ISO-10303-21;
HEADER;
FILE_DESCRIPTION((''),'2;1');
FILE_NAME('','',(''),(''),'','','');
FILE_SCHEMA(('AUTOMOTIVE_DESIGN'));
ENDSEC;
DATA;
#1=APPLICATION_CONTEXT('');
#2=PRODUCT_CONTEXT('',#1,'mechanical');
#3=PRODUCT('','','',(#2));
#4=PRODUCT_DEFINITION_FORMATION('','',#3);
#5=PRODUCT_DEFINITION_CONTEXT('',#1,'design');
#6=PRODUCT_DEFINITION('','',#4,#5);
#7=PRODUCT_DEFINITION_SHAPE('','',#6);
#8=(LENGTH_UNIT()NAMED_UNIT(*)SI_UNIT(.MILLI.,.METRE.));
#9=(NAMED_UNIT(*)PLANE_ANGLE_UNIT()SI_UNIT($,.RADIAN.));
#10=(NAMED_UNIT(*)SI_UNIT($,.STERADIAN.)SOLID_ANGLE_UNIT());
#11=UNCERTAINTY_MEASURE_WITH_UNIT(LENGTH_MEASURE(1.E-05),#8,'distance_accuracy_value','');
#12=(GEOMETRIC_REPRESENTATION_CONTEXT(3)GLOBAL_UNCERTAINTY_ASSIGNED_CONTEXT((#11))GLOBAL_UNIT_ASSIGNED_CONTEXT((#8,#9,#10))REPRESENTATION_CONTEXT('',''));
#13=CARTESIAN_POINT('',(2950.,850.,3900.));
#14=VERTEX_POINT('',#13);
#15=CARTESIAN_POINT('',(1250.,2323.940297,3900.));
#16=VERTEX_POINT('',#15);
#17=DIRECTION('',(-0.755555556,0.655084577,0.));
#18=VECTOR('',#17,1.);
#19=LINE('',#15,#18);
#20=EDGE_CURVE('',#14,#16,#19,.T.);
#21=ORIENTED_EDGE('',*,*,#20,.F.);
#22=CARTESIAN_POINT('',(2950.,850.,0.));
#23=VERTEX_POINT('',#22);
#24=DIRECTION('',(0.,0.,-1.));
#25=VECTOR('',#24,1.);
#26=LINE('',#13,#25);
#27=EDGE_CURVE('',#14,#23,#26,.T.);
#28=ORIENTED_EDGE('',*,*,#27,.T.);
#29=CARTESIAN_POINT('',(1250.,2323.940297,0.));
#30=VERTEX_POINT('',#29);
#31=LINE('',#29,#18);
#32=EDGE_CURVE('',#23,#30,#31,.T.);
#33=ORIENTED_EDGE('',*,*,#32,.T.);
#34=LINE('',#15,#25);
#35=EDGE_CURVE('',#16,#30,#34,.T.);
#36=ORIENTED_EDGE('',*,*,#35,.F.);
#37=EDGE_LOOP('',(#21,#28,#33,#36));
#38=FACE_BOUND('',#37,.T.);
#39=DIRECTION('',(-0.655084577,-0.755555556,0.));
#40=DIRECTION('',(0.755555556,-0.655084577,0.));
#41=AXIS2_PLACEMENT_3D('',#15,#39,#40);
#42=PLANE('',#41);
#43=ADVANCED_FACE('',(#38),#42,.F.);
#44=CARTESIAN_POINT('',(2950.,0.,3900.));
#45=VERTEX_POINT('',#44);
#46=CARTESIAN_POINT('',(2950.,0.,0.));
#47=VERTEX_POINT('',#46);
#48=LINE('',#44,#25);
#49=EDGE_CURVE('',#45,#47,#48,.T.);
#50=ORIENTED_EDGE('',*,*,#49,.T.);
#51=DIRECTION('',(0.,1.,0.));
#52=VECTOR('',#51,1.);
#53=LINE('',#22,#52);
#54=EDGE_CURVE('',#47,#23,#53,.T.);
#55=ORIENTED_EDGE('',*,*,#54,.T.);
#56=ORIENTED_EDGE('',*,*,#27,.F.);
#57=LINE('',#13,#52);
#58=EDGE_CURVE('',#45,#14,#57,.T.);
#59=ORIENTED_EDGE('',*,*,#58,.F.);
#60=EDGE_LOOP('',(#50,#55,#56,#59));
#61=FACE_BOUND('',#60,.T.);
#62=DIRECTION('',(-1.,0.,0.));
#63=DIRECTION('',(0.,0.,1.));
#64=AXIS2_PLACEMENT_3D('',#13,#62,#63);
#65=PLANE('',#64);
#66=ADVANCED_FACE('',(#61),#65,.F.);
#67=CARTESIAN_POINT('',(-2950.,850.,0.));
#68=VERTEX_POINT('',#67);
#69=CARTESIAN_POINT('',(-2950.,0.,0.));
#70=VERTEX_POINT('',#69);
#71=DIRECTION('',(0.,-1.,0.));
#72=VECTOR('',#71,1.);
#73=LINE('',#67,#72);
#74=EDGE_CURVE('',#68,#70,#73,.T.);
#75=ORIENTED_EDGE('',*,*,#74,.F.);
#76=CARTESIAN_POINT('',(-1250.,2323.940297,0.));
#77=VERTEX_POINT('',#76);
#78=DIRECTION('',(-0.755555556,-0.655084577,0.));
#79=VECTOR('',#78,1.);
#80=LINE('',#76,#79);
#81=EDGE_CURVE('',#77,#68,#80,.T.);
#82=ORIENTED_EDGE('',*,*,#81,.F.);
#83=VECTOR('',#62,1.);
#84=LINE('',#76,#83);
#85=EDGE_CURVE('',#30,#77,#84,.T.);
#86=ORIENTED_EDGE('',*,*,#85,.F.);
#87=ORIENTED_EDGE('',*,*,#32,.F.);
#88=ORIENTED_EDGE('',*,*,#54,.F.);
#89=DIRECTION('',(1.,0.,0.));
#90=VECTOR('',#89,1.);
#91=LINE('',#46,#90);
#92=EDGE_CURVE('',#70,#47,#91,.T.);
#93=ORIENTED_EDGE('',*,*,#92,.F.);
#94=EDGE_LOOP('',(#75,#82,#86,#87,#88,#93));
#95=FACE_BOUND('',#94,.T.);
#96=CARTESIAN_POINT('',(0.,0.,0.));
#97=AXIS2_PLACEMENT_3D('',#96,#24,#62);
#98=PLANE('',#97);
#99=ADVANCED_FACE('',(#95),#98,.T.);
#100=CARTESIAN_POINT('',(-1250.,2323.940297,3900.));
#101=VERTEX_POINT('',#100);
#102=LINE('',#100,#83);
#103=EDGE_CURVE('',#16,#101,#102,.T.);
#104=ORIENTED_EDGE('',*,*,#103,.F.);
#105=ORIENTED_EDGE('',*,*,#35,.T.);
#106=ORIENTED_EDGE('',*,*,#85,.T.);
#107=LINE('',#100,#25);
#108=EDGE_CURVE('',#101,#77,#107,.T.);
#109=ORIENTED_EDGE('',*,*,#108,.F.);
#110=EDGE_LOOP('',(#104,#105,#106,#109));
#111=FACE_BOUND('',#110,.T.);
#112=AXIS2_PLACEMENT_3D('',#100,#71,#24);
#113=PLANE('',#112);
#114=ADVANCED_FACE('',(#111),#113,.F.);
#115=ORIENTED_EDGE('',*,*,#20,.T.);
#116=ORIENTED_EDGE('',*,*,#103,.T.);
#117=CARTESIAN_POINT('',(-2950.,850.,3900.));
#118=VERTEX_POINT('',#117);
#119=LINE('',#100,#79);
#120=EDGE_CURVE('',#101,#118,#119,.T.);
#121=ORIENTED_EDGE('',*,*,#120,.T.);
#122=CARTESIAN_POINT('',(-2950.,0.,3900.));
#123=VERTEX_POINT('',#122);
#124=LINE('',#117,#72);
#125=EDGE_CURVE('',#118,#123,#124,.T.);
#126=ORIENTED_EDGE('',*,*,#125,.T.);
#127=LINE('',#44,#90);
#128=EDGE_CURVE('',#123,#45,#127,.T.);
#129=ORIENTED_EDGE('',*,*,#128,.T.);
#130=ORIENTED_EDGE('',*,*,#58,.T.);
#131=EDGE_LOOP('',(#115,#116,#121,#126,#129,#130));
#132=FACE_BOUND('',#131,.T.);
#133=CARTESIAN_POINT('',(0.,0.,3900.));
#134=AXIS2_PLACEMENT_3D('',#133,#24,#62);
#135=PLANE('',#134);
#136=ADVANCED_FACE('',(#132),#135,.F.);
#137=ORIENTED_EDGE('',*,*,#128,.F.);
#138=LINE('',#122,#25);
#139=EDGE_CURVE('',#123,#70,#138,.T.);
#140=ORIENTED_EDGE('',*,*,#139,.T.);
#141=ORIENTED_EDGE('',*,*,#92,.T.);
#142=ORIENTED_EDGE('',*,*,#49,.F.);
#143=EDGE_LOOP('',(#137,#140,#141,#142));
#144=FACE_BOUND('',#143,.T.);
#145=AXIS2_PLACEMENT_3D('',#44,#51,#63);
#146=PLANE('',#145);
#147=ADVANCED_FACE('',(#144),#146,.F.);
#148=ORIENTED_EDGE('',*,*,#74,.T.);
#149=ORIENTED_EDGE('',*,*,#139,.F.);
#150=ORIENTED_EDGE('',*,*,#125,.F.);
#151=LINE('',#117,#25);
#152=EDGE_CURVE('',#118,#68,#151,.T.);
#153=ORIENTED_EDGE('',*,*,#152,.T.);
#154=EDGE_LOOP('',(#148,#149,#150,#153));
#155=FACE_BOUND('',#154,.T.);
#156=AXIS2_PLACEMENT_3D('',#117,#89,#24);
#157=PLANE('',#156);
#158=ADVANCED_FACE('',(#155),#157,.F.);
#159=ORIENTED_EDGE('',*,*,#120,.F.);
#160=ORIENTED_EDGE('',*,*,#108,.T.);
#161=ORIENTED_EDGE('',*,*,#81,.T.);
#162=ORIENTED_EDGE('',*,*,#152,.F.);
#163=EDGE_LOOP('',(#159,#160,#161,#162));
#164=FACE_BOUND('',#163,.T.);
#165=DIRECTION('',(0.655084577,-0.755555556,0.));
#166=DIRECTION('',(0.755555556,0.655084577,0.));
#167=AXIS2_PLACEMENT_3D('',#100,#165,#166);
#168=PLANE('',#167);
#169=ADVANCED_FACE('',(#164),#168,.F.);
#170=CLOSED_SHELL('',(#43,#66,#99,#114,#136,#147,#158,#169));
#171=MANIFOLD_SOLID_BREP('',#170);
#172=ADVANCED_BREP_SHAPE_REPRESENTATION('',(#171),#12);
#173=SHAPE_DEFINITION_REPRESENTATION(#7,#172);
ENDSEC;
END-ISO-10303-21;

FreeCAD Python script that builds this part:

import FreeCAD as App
import Part
import Sketcher
Q = App.Units.Quantity


def add_polygon(sketch, points):
    """Adds a closed chain of lines whose ends are joined by coincident constraints."""
    first, n = sketch.GeometryCount, len(points)
    for a, b in zip(points, points[1:] + points[:1]):
        sketch.addGeometry(Part.LineSegment(App.Vector(*a, 0), App.Vector(*b, 0)), False)
    for i in range(n):
        sketch.addConstraint(Sketcher.Constraint("Coincident", first + i, 2, first + (i + 1) % n, 1))

doc = App.newDocument("Part")
body = doc.addObject("PartDesign::Body", "Body")

sketch1 = body.newObject("Sketcher::SketchObject", "Sketch")
sketch1.AttachmentSupport = (doc.getObject("XY_Plane"), [""])
sketch1.MapMode = "FlatFace"
add_polygon(sketch1, [(1250, 2323.940297), (-1250, 2323.940297), (-2950, 850), (-2950, 0), (2950, 0), (2950, 850)])
sketch1.addConstraint(Sketcher.Constraint("Horizontal", 0))
sketch1.addConstraint(Sketcher.Constraint("Vertical", 2))
sketch1.addConstraint(Sketcher.Constraint("Horizontal", 3))
sketch1.addConstraint(Sketcher.Constraint("Vertical", 4))
sketch1.addConstraint(Sketcher.Constraint("Symmetric", 2, 2, 3, 2, -1, 1))
sketch1.addConstraint(Sketcher.Constraint("Horizontal", 1, 2, 4, 2))
sketch1.addConstraint(Sketcher.Constraint("Equal", 1, 5))
sketch1.addConstraint(Sketcher.Constraint("DistanceX", 0, 2, 0, 1, Q("2500 mm")))
sketch1.addConstraint(Sketcher.Constraint("DistanceX", 3, 1, 3, 2, Q("5900 mm")))
sketch1.addConstraint(Sketcher.Constraint("DistanceY", 2, 2, 2, 1, Q("850 mm")))
sketch1.addConstraint(Sketcher.Constraint("Distance", 1, Q("2250 mm")))
pad1 = body.newObject("PartDesign::Pad", "Pad")
pad1.Profile = sketch1
pad1.Length = 3900

doc.recompute()
